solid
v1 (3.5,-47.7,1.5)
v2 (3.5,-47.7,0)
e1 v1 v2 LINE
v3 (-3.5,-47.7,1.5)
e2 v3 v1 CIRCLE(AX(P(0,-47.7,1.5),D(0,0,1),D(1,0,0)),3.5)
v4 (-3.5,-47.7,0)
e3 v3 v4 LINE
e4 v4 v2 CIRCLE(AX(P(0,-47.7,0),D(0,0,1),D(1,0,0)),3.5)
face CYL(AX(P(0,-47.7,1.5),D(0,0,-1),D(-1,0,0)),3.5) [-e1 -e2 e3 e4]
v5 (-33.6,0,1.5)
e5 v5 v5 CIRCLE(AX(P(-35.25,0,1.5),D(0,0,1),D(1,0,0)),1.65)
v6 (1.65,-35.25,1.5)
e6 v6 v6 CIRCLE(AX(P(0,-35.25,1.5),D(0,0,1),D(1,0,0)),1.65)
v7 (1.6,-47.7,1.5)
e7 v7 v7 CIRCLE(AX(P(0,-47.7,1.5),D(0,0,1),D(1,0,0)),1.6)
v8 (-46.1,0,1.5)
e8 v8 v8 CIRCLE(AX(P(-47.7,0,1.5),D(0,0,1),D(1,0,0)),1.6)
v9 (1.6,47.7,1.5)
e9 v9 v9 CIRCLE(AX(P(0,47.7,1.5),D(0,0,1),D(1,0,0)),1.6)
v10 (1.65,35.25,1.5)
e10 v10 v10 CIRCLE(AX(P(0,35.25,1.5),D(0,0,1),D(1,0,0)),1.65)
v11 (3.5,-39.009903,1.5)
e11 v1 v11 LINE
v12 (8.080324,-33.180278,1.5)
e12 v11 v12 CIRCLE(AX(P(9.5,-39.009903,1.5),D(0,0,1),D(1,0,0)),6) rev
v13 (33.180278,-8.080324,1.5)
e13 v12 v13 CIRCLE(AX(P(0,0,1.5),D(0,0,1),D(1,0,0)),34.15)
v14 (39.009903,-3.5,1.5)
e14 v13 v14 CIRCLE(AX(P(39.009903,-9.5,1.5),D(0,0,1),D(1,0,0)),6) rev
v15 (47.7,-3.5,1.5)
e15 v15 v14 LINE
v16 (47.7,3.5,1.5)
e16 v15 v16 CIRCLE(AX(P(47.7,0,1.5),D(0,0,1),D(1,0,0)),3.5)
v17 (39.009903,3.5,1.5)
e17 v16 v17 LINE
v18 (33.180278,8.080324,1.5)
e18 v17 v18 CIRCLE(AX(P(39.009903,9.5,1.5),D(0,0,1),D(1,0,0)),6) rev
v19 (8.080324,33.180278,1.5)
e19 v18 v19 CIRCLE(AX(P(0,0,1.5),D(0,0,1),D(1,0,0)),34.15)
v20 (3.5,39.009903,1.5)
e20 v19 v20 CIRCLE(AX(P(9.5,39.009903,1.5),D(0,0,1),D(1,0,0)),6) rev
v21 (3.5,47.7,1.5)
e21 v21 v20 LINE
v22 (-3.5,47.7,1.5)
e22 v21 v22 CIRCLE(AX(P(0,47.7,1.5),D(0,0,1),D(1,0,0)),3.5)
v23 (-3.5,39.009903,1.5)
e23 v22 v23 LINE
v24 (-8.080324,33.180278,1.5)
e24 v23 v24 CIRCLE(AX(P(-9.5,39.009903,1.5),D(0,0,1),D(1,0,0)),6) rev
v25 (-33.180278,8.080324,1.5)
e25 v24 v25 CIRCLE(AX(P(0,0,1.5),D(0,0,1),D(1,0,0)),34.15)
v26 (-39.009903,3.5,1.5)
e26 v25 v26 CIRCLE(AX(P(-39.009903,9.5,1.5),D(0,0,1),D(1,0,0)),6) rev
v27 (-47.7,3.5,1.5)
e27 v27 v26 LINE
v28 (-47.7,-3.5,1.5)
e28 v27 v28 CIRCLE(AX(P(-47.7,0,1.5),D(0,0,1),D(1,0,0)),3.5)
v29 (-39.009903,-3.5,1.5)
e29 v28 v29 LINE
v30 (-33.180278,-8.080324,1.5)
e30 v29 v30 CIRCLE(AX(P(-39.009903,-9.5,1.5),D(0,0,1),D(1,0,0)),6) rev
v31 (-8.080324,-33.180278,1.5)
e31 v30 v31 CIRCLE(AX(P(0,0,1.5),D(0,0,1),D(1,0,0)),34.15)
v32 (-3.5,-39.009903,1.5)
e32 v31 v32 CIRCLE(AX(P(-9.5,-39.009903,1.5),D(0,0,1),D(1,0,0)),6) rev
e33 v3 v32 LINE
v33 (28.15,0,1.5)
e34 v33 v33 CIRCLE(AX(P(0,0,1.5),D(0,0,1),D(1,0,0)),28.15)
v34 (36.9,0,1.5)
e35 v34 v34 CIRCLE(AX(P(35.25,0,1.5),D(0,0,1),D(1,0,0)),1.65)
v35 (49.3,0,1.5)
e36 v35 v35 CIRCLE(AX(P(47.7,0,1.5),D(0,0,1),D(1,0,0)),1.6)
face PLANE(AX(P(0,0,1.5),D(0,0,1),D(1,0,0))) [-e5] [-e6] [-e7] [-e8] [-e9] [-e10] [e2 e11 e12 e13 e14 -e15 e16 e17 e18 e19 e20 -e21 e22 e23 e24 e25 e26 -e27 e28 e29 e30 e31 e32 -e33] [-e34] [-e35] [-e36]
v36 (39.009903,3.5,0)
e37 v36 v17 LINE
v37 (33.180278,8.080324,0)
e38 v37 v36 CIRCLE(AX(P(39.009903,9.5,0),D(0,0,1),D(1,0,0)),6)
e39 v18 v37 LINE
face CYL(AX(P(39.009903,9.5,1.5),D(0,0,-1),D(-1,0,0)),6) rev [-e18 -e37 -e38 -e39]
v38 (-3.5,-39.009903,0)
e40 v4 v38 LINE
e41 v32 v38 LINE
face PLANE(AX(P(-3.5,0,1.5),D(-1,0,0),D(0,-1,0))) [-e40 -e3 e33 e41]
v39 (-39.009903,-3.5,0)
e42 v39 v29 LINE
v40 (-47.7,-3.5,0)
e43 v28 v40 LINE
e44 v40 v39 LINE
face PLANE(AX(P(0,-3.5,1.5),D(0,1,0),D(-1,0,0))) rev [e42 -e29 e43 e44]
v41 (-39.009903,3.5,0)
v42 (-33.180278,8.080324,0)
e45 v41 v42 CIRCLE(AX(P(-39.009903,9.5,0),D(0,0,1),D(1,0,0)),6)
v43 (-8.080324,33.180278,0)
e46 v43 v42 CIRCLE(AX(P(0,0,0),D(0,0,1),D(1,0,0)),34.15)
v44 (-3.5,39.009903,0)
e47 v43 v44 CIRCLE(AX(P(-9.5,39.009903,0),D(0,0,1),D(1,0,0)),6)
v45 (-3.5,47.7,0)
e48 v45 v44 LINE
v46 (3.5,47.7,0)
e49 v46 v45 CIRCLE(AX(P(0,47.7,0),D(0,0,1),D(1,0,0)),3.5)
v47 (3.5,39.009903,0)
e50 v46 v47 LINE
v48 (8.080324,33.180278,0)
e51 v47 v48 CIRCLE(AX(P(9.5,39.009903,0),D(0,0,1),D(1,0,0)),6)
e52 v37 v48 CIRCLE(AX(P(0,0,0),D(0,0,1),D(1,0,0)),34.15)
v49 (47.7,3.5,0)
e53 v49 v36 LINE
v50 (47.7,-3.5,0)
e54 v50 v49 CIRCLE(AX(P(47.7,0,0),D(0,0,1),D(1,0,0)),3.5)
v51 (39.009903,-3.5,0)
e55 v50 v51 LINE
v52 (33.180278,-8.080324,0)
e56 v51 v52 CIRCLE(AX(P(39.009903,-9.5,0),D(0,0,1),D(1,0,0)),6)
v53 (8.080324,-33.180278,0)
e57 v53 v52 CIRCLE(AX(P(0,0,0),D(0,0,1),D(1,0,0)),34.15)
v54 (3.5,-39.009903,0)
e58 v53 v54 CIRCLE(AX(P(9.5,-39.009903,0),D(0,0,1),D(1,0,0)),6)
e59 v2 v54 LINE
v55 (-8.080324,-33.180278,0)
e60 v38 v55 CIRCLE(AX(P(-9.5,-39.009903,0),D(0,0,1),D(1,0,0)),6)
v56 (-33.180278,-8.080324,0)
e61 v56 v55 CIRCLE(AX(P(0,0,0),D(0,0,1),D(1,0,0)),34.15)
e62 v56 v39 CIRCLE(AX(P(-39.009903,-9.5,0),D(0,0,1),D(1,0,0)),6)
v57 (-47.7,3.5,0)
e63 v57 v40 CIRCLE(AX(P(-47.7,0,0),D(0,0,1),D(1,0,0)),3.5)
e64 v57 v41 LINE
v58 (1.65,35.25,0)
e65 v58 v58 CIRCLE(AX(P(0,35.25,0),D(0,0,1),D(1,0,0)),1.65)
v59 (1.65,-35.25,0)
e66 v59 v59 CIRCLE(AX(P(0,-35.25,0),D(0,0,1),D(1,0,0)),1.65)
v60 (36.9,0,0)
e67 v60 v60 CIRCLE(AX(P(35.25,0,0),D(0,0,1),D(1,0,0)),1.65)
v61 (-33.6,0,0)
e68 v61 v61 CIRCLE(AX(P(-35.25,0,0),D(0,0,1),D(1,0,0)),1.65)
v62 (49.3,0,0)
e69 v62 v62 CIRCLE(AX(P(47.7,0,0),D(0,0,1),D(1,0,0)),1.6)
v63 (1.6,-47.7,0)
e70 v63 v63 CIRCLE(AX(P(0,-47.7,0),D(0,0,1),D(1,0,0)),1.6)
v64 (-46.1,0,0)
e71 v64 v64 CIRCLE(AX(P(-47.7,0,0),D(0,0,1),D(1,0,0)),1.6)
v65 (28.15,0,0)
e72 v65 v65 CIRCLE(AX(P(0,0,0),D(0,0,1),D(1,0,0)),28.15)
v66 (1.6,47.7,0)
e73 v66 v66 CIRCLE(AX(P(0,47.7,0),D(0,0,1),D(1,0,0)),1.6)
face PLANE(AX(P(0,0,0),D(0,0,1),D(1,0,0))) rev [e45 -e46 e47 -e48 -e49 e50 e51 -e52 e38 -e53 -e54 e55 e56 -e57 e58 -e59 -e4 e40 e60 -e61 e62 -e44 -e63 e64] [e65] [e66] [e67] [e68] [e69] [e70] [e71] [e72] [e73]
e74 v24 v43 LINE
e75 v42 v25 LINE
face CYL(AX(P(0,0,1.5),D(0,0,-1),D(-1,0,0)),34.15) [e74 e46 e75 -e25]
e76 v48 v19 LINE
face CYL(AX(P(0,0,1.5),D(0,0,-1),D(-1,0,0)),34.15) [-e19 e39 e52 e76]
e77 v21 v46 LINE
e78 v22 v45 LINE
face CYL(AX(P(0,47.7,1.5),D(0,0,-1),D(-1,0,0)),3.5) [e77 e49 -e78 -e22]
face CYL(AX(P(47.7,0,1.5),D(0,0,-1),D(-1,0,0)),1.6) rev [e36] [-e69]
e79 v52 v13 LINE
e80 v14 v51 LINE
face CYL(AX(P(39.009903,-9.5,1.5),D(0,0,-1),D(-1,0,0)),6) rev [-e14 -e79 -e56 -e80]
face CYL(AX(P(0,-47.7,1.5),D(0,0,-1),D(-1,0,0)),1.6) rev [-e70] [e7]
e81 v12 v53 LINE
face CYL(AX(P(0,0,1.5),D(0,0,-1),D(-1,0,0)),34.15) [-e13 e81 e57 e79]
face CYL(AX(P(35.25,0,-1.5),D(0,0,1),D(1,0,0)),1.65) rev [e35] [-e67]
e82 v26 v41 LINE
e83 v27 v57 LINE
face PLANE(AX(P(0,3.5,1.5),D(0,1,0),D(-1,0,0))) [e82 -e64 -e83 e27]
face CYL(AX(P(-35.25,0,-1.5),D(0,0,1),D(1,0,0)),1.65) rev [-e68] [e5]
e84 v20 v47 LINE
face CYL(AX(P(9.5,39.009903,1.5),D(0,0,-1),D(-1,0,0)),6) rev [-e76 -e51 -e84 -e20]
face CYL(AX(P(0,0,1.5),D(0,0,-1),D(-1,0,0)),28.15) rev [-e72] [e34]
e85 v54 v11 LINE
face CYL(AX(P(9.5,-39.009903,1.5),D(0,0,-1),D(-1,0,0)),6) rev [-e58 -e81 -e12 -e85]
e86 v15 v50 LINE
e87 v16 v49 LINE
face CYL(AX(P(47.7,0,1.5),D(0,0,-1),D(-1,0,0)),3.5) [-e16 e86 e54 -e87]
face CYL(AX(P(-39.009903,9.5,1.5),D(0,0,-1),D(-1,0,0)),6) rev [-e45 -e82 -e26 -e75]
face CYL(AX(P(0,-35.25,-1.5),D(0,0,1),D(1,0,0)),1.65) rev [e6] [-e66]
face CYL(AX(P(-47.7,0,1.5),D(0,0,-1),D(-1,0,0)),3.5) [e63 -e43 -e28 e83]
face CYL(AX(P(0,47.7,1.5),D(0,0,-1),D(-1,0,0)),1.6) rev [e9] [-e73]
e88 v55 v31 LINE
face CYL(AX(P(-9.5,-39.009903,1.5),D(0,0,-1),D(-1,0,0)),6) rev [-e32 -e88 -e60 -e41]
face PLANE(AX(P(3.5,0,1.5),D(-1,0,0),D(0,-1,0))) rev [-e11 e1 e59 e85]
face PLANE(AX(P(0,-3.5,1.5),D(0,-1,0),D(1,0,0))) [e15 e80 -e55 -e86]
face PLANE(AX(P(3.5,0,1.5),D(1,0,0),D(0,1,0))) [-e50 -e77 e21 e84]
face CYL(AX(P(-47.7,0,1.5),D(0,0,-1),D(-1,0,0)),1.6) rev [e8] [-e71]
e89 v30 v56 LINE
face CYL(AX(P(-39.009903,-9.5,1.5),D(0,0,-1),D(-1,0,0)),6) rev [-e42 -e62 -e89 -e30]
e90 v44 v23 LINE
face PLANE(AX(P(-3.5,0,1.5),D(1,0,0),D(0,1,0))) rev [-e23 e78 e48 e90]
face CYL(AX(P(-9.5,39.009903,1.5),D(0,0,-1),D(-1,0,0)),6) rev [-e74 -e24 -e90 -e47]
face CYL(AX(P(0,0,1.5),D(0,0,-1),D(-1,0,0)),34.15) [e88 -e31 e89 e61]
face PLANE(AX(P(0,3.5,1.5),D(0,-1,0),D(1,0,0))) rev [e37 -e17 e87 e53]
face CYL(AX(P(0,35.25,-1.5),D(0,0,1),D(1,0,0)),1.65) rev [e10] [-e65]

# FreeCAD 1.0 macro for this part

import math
import FreeCAD as App
import Part
import Sketcher
Q = App.Units.Quantity


def edges_at(feature, points):
    """Names of the edges that pass closest to the given points."""
    edges = feature.Shape.Edges
    near = lambda p: min(range(len(edges)), key=lambda i: edges[i].distToShape(Part.Vertex(*p))[0])
    return sorted({f"Edge{near(p) + 1}" for p in points})

doc = App.newDocument("Part")
body = doc.addObject("PartDesign::Body", "Body")

# Sketch on XY plane
sketch1 = doc.addObject("Sketcher::SketchObject", "Sketch")
body.addObject(sketch1)
sketch1.AttachmentSupport = (doc.XY_Plane, [""])
sketch1.MapMode = "FlatFace"
sketch1.addGeometry([
    Part.ArcOfCircle(Part.Circle(App.Vector(47.7, 0, 0), App.Vector(0, 0, 1), 3.5), math.radians(-90), math.radians(90)),  # 0
    Part.LineSegment(App.Vector(47.7, 3.5, 0), App.Vector(34.15, 3.5, 0)),  # 1
    Part.ArcOfCircle(Part.Circle(App.Vector(34.15, 0, 0), App.Vector(0, 0, 1), 3.5), math.radians(90), math.radians(92.937381)),  # 2
    Part.ArcOfCircle(Part.Circle(App.Vector(0, 0, 0), App.Vector(0, 0, 1), 34.15), math.radians(5.874761), math.radians(84.125239)),  # 3
    Part.ArcOfCircle(Part.Circle(App.Vector(0, 34.15, 0), App.Vector(0, 0, 1), 3.5), math.radians(-2.937381), math.radians(0)),  # 4
    Part.LineSegment(App.Vector(3.5, 34.15, 0), App.Vector(3.5, 47.7, 0)),  # 5
    Part.ArcOfCircle(Part.Circle(App.Vector(0, 47.7, 0), App.Vector(0, 0, 1), 3.5), math.radians(0), math.radians(180)),  # 6
    Part.LineSegment(App.Vector(-3.5, 47.7, 0), App.Vector(-3.5, 34.15, 0)),  # 7
    Part.ArcOfCircle(Part.Circle(App.Vector(0, 34.15, 0), App.Vector(0, 0, 1), 3.5), math.radians(180), math.radians(182.937381)),  # 8
    Part.ArcOfCircle(Part.Circle(App.Vector(0, 0, 0), App.Vector(0, 0, 1), 34.15), math.radians(95.874761), math.radians(174.125239)),  # 9
    Part.ArcOfCircle(Part.Circle(App.Vector(-34.15, 0, 0), App.Vector(0, 0, 1), 3.5), math.radians(87.062619), math.radians(90)),  # 10
    Part.LineSegment(App.Vector(-34.15, 3.5, 0), App.Vector(-47.7, 3.5, 0)),  # 11
    Part.ArcOfCircle(Part.Circle(App.Vector(-47.7, 0, 0), App.Vector(0, 0, 1), 3.5), math.radians(90), math.radians(270)),  # 12
    Part.LineSegment(App.Vector(-47.7, -3.5, 0), App.Vector(-34.15, -3.5, 0)),  # 13
    Part.ArcOfCircle(Part.Circle(App.Vector(-34.15, 0, 0), App.Vector(0, 0, 1), 3.5), math.radians(-90), math.radians(-87.062619)),  # 14
    Part.ArcOfCircle(Part.Circle(App.Vector(0, 0, 0), App.Vector(0, 0, 1), 34.15), math.radians(-174.125239), math.radians(-95.874761)),  # 15
    Part.ArcOfCircle(Part.Circle(App.Vector(0, -34.15, 0), App.Vector(0, 0, 1), 3.5), math.radians(177.062619), math.radians(180)),  # 16
    Part.LineSegment(App.Vector(-3.5, -34.15, 0), App.Vector(-3.5, -47.7, 0)),  # 17
    Part.ArcOfCircle(Part.Circle(App.Vector(0, -47.7, 0), App.Vector(0, 0, 1), 3.5), math.radians(180), math.radians(360)),  # 18
    Part.LineSegment(App.Vector(3.5, -47.7, 0), App.Vector(3.5, -34.15, 0)),  # 19
    Part.ArcOfCircle(Part.Circle(App.Vector(0, -34.15, 0), App.Vector(0, 0, 1), 3.5), math.radians(0), math.radians(2.937381)),  # 20
    Part.ArcOfCircle(Part.Circle(App.Vector(0, 0, 0), App.Vector(0, 0, 1), 34.15), math.radians(-84.125239), math.radians(-5.874761)),  # 21
    Part.ArcOfCircle(Part.Circle(App.Vector(34.15, 0, 0), App.Vector(0, 0, 1), 3.5), math.radians(-92.937381), math.radians(-90)),  # 22
    Part.LineSegment(App.Vector(34.15, -3.5, 0), App.Vector(47.7, -3.5, 0)),  # 23
    Part.Circle(App.Vector(47.7, 0, 0), App.Vector(0, 0, 1), 1.6),  # 24
    Part.Circle(App.Vector(0, 0, 0), App.Vector(0, 0, 1), 28.15),  # 25
    Part.Circle(App.Vector(0, -47.7, 0), App.Vector(0, 0, 1), 1.6),  # 26
    Part.Circle(App.Vector(-47.7, 0, 0), App.Vector(0, 0, 1), 1.6),  # 27
    Part.Circle(App.Vector(0, 47.7, 0), App.Vector(0, 0, 1), 1.6),  # 28
], False)
sketch1.addConstraint([
    Sketcher.Constraint("Tangent", 0, 2, 1, 1),
    Sketcher.Constraint("Tangent", 1, 2, 2, 1),
    Sketcher.Constraint("Coincident", 2, 2, 3, 1),
    Sketcher.Constraint("Coincident", 3, 2, 4, 1),
    Sketcher.Constraint("Tangent", 4, 2, 5, 1),
    Sketcher.Constraint("Tangent", 5, 2, 6, 1),
    Sketcher.Constraint("Tangent", 6, 2, 7, 1),
    Sketcher.Constraint("Tangent", 7, 2, 8, 1),
    Sketcher.Constraint("Coincident", 8, 2, 9, 1),
    Sketcher.Constraint("Coincident", 9, 2, 10, 1),
    Sketcher.Constraint("Tangent", 10, 2, 11, 1),
    Sketcher.Constraint("Tangent", 11, 2, 12, 1),
    Sketcher.Constraint("Tangent", 12, 2, 13, 1),
    Sketcher.Constraint("Tangent", 13, 2, 14, 1),
    Sketcher.Constraint("Coincident", 14, 2, 15, 1),
    Sketcher.Constraint("Coincident", 15, 2, 16, 1),
    Sketcher.Constraint("Tangent", 16, 2, 17, 1),
    Sketcher.Constraint("Tangent", 17, 2, 18, 1),
    Sketcher.Constraint("Tangent", 18, 2, 19, 1),
    Sketcher.Constraint("Tangent", 19, 2, 20, 1),
    Sketcher.Constraint("Coincident", 20, 2, 21, 1),
    Sketcher.Constraint("Coincident", 21, 2, 22, 1),
    Sketcher.Constraint("Tangent", 22, 2, 23, 1),
    Sketcher.Constraint("Tangent", 23, 2, 0, 1),
    Sketcher.Constraint("Horizontal", 1),
    Sketcher.Constraint("Vertical", 5),
    Sketcher.Constraint("Vertical", 7),
    Sketcher.Constraint("Horizontal", 11),
    Sketcher.Constraint("Horizontal", 13),
    Sketcher.Constraint("Vertical", 17),
    Sketcher.Constraint("Vertical", 19),
    Sketcher.Constraint("Horizontal", 23),
    Sketcher.Constraint("Coincident", 3, 3, -1, 1),
    Sketcher.Constraint("Coincident", 9, 3, -1, 1),
    Sketcher.Constraint("Coincident", 15, 3, -1, 1),
    Sketcher.Constraint("Coincident", 21, 3, -1, 1),
    Sketcher.Constraint("Coincident", 25, 3, -1, 1),
    Sketcher.Constraint("Coincident", 8, 3, 4, 3),
    Sketcher.Constraint("Coincident", 14, 3, 10, 3),
    Sketcher.Constraint("Coincident", 20, 3, 16, 3),
    Sketcher.Constraint("Coincident", 22, 3, 2, 3),
    Sketcher.Constraint("Coincident", 24, 3, 0, 3),
    Sketcher.Constraint("Coincident", 26, 3, 18, 3),
    Sketcher.Constraint("Coincident", 27, 3, 12, 3),
    Sketcher.Constraint("Coincident", 28, 3, 6, 3),
    Sketcher.Constraint("Equal", 0, 2),
    Sketcher.Constraint("Equal", 2, 4),
    Sketcher.Constraint("Equal", 4, 6),
    Sketcher.Constraint("Equal", 3, 9),
    Sketcher.Constraint("Equal", 8, 10),
    Sketcher.Constraint("Equal", 10, 12),
    Sketcher.Constraint("Equal", 9, 15),
    Sketcher.Constraint("Equal", 14, 16),
    Sketcher.Constraint("Equal", 16, 18),
    Sketcher.Constraint("Equal", 15, 21),
    Sketcher.Constraint("Equal", 24, 26),
    Sketcher.Constraint("Equal", 26, 27),
    Sketcher.Constraint("Equal", 27, 28),
    Sketcher.Constraint("Symmetric", 2, 3, 10, 3, -1, 1),
    Sketcher.Constraint("Symmetric", 4, 3, 16, 3, -1, 1),
    Sketcher.Constraint("Symmetric", 0, 3, 12, 3, -2),
    Sketcher.Constraint("Symmetric", 6, 3, 18, 3, -1),
    Sketcher.Constraint("Equal", 23, 5),
    Sketcher.Constraint("Diameter", 24, Q("3.2 mm")),
    Sketcher.Constraint("Diameter", 25, Q("56.3 mm")),
    Sketcher.Constraint("Radius", 0, Q("3.5 mm")),
    Sketcher.Constraint("Radius", 3, Q("34.15 mm")),
    Sketcher.Constraint("DistanceX", 1, 2, 1, 1, Q("13.55 mm")),
    Sketcher.Constraint("DistanceX", -1, 1, 0, 3, Q("47.7 mm")),
    Sketcher.Constraint("DistanceY", -1, 1, 6, 3, Q("47.7 mm")),
])
pad1 = doc.addObject("PartDesign::Pad", "Pad")
body.addObject(pad1)
pad1.Profile = sketch1
pad1.Length = 1.5
doc.recompute()

fillet = doc.addObject("PartDesign::Fillet", "Fillet")
body.addObject(fillet)
fillet.Base = (pad1, edges_at(pad1, [
    (-3.495, 33.971, 0.75),
    (3.495, 33.971, 0.75),
    (33.971, 3.495, 0.75),
    (33.971, -3.495, 0.75),
    (3.495, -33.971, 0.75),
    (-3.495, -33.971, 0.75),
    (-33.971, -3.495, 0.75),
    (-33.971, 3.495, 0.75),
]))
fillet.Radius = 6

# Sketch on XY plane
sketch2 = doc.addObject("Sketcher::SketchObject", "Sketch001")
body.addObject(sketch2)
sketch2.AttachmentSupport = (doc.XY_Plane, [""])
sketch2.MapMode = "FlatFace"
sketch2.AttachmentOffset = App.Placement(App.Vector(0, 0, 1.5), App.Rotation())
sketch2.addGeometry([
    Part.Circle(App.Vector(-35.25, 0, 0), App.Vector(0, 0, 1), 1.65),
    Part.Circle(App.Vector(0, 35.25, 0), App.Vector(0, 0, 1), 1.65),
    Part.Circle(App.Vector(35.25, 0, 0), App.Vector(0, 0, 1), 1.65),
    Part.Circle(App.Vector(0, -35.25, 0), App.Vector(0, 0, 1), 1.65),
], False)
sketch2.addConstraint([
    Sketcher.Constraint("Equal", 0, 1),
    Sketcher.Constraint("Equal", 1, 2),
    Sketcher.Constraint("Equal", 2, 3),
    Sketcher.Constraint("Symmetric", 0, 3, 2, 3, -1, 1),
    Sketcher.Constraint("Symmetric", 1, 3, 3, 3, -1, 1),
    Sketcher.Constraint("PointOnObject", 0, 3, -1),
    Sketcher.Constraint("PointOnObject", 1, 3, -2),
    Sketcher.Constraint("Diameter", 0, Q("3.3 mm")),
    Sketcher.Constraint("DistanceX", 0, 3, 2, 3, Q("70.5 mm")),
    Sketcher.Constraint("DistanceY", 3, 3, 1, 3, Q("70.5 mm")),
])
pocket1 = doc.addObject("PartDesign::Pocket", "Pocket")
body.addObject(pocket1)
pocket1.Profile = sketch2
pocket1.Length = 3

doc.recompute()
